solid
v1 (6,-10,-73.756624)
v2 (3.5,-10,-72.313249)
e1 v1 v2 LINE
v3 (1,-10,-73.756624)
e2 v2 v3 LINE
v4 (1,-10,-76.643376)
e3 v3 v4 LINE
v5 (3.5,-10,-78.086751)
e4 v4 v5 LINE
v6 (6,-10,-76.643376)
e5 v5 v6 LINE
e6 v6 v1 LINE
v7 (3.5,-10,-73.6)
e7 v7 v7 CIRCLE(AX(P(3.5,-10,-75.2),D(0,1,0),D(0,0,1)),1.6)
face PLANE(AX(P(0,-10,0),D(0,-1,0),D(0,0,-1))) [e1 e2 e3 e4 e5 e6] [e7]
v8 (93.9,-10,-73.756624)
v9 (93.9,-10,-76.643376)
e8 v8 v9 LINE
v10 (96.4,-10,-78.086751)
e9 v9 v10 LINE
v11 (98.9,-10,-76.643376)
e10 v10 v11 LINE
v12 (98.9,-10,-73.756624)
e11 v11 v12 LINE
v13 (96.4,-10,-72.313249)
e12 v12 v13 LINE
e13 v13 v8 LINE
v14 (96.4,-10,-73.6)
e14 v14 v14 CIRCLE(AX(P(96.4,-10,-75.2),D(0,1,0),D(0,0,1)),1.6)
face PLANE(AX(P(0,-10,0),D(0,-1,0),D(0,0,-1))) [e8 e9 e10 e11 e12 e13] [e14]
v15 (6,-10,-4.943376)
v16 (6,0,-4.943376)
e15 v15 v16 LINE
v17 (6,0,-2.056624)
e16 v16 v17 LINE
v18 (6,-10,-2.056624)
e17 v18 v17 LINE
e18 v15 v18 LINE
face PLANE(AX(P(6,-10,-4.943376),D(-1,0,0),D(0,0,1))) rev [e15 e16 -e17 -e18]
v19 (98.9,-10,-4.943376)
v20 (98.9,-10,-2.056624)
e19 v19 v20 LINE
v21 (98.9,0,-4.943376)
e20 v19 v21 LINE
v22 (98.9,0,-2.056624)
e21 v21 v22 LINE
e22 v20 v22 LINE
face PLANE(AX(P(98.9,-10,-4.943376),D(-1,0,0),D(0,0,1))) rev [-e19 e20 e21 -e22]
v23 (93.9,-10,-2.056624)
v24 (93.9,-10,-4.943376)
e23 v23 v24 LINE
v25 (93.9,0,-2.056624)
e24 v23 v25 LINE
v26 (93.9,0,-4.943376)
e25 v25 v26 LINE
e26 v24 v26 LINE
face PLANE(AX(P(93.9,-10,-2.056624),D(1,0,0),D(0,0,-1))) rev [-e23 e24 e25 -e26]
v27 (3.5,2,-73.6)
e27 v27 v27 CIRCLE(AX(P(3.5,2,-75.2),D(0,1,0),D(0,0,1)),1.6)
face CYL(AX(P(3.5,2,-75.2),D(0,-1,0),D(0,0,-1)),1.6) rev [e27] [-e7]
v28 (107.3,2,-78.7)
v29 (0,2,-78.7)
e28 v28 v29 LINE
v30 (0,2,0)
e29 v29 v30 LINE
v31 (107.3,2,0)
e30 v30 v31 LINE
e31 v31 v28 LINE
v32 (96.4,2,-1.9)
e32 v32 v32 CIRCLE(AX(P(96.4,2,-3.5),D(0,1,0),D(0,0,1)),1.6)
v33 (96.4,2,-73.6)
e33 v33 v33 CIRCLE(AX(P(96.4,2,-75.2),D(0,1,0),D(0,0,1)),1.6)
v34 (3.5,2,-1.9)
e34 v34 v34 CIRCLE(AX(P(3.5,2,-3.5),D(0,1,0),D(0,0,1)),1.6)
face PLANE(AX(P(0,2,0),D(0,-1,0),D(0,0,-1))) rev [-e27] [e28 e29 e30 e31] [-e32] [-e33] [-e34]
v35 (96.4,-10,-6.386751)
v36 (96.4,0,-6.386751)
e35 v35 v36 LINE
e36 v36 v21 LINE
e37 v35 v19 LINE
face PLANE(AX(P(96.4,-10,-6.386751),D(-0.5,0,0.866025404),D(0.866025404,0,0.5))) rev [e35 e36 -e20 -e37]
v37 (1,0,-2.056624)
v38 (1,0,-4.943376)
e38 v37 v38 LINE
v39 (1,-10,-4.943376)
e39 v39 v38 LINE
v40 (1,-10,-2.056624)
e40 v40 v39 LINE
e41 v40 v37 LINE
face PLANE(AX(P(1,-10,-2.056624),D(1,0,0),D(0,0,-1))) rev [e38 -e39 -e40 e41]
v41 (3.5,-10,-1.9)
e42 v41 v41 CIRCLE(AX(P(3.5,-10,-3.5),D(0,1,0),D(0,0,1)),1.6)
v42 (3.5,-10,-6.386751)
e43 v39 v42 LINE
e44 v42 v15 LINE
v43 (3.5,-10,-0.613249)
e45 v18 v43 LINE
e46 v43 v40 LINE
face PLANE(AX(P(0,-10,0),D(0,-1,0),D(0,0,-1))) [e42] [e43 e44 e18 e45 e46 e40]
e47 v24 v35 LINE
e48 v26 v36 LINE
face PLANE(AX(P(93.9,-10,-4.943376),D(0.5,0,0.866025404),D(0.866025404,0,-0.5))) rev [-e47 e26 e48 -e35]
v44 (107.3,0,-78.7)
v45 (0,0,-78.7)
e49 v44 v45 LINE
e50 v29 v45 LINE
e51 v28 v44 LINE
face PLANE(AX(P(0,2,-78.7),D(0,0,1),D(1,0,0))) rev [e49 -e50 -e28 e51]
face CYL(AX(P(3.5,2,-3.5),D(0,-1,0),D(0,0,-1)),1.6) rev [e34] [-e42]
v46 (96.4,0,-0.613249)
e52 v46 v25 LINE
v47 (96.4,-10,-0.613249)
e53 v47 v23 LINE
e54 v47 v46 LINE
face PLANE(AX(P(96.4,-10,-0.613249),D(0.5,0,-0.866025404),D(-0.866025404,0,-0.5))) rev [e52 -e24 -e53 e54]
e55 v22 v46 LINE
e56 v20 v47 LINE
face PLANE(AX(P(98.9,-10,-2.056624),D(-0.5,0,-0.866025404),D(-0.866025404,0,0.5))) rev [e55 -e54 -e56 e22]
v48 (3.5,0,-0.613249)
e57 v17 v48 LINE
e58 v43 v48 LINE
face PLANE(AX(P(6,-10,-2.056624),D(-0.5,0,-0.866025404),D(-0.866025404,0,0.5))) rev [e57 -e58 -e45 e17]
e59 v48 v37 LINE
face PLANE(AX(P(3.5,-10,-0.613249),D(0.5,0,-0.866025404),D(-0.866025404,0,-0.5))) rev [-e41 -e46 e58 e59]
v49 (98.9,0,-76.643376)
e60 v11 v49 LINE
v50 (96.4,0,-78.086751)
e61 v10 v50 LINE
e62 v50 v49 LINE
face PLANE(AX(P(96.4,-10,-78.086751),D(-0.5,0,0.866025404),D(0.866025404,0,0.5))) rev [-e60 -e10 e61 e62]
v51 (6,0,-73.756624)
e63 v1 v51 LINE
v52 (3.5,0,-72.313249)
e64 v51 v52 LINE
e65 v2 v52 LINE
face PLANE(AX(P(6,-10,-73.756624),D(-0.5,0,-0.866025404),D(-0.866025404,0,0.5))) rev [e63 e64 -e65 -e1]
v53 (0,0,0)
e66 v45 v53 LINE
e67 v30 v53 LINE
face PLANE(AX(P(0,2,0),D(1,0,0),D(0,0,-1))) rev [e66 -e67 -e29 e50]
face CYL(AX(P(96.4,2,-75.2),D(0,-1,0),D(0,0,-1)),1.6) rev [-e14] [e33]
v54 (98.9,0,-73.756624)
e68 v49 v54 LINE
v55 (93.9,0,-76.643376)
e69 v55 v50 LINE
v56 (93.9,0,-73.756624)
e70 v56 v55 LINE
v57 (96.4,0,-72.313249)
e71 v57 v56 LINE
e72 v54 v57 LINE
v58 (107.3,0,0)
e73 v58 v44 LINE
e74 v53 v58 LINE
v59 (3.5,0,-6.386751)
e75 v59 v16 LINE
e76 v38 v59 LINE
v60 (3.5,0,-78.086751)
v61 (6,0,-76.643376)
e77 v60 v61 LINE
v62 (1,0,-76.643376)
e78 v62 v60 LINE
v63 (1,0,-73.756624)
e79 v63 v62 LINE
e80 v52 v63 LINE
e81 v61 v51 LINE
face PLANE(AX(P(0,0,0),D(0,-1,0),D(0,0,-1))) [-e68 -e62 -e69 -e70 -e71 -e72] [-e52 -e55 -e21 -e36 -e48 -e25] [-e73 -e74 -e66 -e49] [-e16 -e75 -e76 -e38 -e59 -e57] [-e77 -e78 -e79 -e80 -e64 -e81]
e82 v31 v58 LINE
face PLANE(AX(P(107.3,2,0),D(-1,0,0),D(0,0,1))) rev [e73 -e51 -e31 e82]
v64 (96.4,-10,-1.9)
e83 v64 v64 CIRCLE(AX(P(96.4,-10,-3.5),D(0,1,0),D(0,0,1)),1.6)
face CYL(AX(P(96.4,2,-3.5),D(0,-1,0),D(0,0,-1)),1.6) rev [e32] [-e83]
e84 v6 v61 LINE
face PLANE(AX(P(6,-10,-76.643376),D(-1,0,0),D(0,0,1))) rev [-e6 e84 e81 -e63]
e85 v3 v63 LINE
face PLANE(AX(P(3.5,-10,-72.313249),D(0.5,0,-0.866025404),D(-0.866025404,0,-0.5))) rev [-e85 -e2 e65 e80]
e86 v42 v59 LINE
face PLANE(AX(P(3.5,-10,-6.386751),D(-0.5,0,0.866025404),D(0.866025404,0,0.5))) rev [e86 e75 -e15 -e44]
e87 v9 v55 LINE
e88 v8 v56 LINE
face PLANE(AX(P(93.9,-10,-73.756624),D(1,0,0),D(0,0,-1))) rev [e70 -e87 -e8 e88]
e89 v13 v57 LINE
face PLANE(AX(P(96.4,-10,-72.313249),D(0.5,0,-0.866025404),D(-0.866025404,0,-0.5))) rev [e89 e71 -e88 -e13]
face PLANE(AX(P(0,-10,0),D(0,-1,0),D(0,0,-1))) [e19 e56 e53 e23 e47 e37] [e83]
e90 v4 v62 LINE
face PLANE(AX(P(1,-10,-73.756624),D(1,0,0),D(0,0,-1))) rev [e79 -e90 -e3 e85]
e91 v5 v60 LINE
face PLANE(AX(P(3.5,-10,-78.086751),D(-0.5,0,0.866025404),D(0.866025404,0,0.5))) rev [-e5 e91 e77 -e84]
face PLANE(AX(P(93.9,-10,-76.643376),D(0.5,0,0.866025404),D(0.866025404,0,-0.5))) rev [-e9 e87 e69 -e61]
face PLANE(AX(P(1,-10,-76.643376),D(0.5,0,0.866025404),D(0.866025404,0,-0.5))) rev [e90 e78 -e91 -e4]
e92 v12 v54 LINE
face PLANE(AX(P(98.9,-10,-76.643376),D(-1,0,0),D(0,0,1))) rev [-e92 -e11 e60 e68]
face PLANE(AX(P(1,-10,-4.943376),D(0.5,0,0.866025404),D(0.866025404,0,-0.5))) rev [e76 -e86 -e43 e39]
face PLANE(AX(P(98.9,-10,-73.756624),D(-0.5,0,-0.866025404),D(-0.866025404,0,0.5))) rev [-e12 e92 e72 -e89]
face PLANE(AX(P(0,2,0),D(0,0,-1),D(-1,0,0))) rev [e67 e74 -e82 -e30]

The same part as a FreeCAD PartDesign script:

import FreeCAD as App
import Part
import Sketcher
from FreeCAD import Vector
Q = App.Units.Quantity

doc = App.newDocument("Part")
body = doc.addObject("PartDesign::Body", "Body")

sketch1 = doc.addObject("Sketcher::SketchObject", "Sketch")
body.addObject(sketch1)
sketch1.AttachmentSupport = (doc.XZ_Plane, [""])
sketch1.MapMode = "FlatFace"
sketch1.addGeometry([
    Part.LineSegment(Vector(0, -78.7, 0), Vector(0, 0, 0)),
    Part.LineSegment(Vector(0, 0, 0), Vector(107.3, 0, 0)),
    Part.LineSegment(Vector(107.3, 0, 0), Vector(107.3, -78.7, 0)),
    Part.LineSegment(Vector(107.3, -78.7, 0), Vector(0, -78.7, 0)),
    Part.Circle(Vector(3.5, -3.5, 0), Vector(0, 0, 1), 1.6),
    Part.Circle(Vector(96.4, -3.5, 0), Vector(0, 0, 1), 1.6),
    Part.Circle(Vector(3.5, -75.2, 0), Vector(0, 0, 1), 1.6),
    Part.Circle(Vector(96.4, -75.2, 0), Vector(0, 0, 1), 1.6),
], False)
sketch1.addConstraint([
    Sketcher.Constraint("Coincident", 0, 2, 1, 1),
    Sketcher.Constraint("Coincident", 1, 2, 2, 1),
    Sketcher.Constraint("Coincident", 2, 2, 3, 1),
    Sketcher.Constraint("Coincident", 3, 2, 0, 1),
    Sketcher.Constraint("Vertical", 0),
    Sketcher.Constraint("Horizontal", 1),
    Sketcher.Constraint("Vertical", 2),
    Sketcher.Constraint("Horizontal", 3),
    Sketcher.Constraint("Coincident", 0, 2, -1, 1),
    Sketcher.Constraint("Equal", 4, 5),
    Sketcher.Constraint("Equal", 5, 6),
    Sketcher.Constraint("Equal", 6, 7),
    Sketcher.Constraint("Horizontal", 4, 3, 5, 3),
    Sketcher.Constraint("Horizontal", 6, 3, 7, 3),
    Sketcher.Constraint("Vertical", 4, 3, 6, 3),
    Sketcher.Constraint("Vertical", 5, 3, 7, 3),
    Sketcher.Constraint("Diameter", 4, 3.2),
    Sketcher.Constraint("DistanceX", 1, 1, 1, 2, 107.3),
    Sketcher.Constraint("DistanceY", 0, 1, 0, 2, 78.7),
    Sketcher.Constraint("DistanceX", -1, 1, 4, 3, 3.5),
    Sketcher.Constraint("DistanceY", 4, 3, -1, 1, 3.5),
    Sketcher.Constraint("DistanceX", -1, 1, 5, 3, 96.4),
    Sketcher.Constraint("DistanceY", 6, 3, -1, 1, 75.2),
])
pad1 = doc.addObject("PartDesign::Pad", "Pad")
body.addObject(pad1)
pad1.Profile = sketch1
pad1.Length = 2
pad1.Reversed = True

sketch2 = doc.addObject("Sketcher::SketchObject", "Sketch001")
body.addObject(sketch2)
sketch2.AttachmentSupport = (doc.XZ_Plane, [""])
sketch2.MapMode = "FlatFace"
sketch2.addGeometry([
    Part.LineSegment(Vector(93.9, -4.9, 0), Vector(96.4, -6.4, 0)),
    Part.LineSegment(Vector(96.4, -6.4, 0), Vector(98.9, -4.9, 0)),
    Part.LineSegment(Vector(98.9, -4.9, 0), Vector(98.9, -2.1, 0)),
    Part.LineSegment(Vector(98.9, -2.1, 0), Vector(96.4, -0.6, 0)),
    Part.LineSegment(Vector(96.4, -0.6, 0), Vector(93.9, -2.1, 0)),
    Part.LineSegment(Vector(93.9, -2.1, 0), Vector(93.9, -4.9, 0)),
    Part.LineSegment(Vector(93.9, -76.6, 0), Vector(96.4, -78.1, 0)),
    Part.LineSegment(Vector(96.4, -78.1, 0), Vector(98.9, -76.6, 0)),
    Part.LineSegment(Vector(98.9, -76.6, 0), Vector(98.9, -73.8, 0)),
    Part.LineSegment(Vector(98.9, -73.8, 0), Vector(96.4, -72.3, 0)),
    Part.LineSegment(Vector(96.4, -72.3, 0), Vector(93.9, -73.8, 0)),
    Part.LineSegment(Vector(93.9, -73.8, 0), Vector(93.9, -76.6, 0)),
    Part.LineSegment(Vector(3.5, -6.4, 0), Vector(6, -4.9, 0)),
    Part.LineSegment(Vector(6, -4.9, 0), Vector(6, -2.1, 0)),
    Part.LineSegment(Vector(6, -2.1, 0), Vector(3.5, -0.6, 0)),
    Part.LineSegment(Vector(3.5, -0.6, 0), Vector(1, -2.1, 0)),
    Part.LineSegment(Vector(1, -2.1, 0), Vector(1, -4.9, 0)),
    Part.LineSegment(Vector(1, -4.9, 0), Vector(3.5, -6.4, 0)),
    Part.LineSegment(Vector(3.5, -72.3, 0), Vector(1, -73.8, 0)),
    Part.LineSegment(Vector(1, -73.8, 0), Vector(1, -76.6, 0)),
    Part.LineSegment(Vector(1, -76.6, 0), Vector(3.5, -78.1, 0)),
    Part.LineSegment(Vector(3.5, -78.1, 0), Vector(6, -76.6, 0)),
    Part.LineSegment(Vector(6, -76.6, 0), Vector(6, -73.8, 0)),
    Part.LineSegment(Vector(6, -73.8, 0), Vector(3.5, -72.3, 0)),
], False)
sketch2.addConstraint([
    Sketcher.Constraint("Coincident", 0, 2, 1, 1),
    Sketcher.Constraint("Coincident", 1, 2, 2, 1),
    Sketcher.Constraint("Coincident", 2, 2, 3, 1),
    Sketcher.Constraint("Coincident", 3, 2, 4, 1),
    Sketcher.Constraint("Coincident", 4, 2, 5, 1),
    Sketcher.Constraint("Coincident", 5, 2, 0, 1),
    Sketcher.Constraint("Coincident", 6, 2, 7, 1),
    Sketcher.Constraint("Coincident", 7, 2, 8, 1),
    Sketcher.Constraint("Coincident", 8, 2, 9, 1),
    Sketcher.Constraint("Coincident", 9, 2, 10, 1),
    Sketcher.Constraint("Coincident", 10, 2, 11, 1),
    Sketcher.Constraint("Coincident", 11, 2, 6, 1),
    Sketcher.Constraint("Coincident", 12, 2, 13, 1),
    Sketcher.Constraint("Coincident", 13, 2, 14, 1),
    Sketcher.Constraint("Coincident", 14, 2, 15, 1),
    Sketcher.Constraint("Coincident", 15, 2, 16, 1),
    Sketcher.Constraint("Coincident", 16, 2, 17, 1),
    Sketcher.Constraint("Coincident", 17, 2, 12, 1),
    Sketcher.Constraint("Coincident", 18, 2, 19, 1),
    Sketcher.Constraint("Coincident", 19, 2, 20, 1),
    Sketcher.Constraint("Coincident", 20, 2, 21, 1),
    Sketcher.Constraint("Coincident", 21, 2, 22, 1),
    Sketcher.Constraint("Coincident", 22, 2, 23, 1),
    Sketcher.Constraint("Coincident", 23, 2, 18, 1),
    Sketcher.Constraint("Vertical", 2),
    Sketcher.Constraint("Vertical", 5),
    Sketcher.Constraint("Vertical", 8),
    Sketcher.Constraint("Vertical", 11),
    Sketcher.Constraint("Vertical", 13),
    Sketcher.Constraint("Vertical", 16),
    Sketcher.Constraint("Vertical", 19),
    Sketcher.Constraint("Vertical", 22),
    Sketcher.Constraint("Parallel", 0, 3),
    Sketcher.Constraint("Parallel", 1, 4),
    Sketcher.Constraint("Parallel", 3, 6),
    Sketcher.Constraint("Parallel", 4, 7),
    Sketcher.Constraint("Parallel", 6, 9),
    Sketcher.Constraint("Parallel", 7, 10),
    Sketcher.Constraint("Parallel", 10, 12),
    Sketcher.Constraint("Parallel", 9, 14),
    Sketcher.Constraint("Parallel", 12, 15),
    Sketcher.Constraint("Parallel", 14, 17),
    Sketcher.Constraint("Parallel", 15, 18),
    Sketcher.Constraint("Parallel", 17, 20),
    Sketcher.Constraint("Parallel", 18, 21),
    Sketcher.Constraint("Parallel", 20, 23),
    Sketcher.Constraint("Horizontal", 2, 2, 4, 2),
    Sketcher.Constraint("Horizontal", 1, 2, 5, 2),
    Sketcher.Constraint("Horizontal", 8, 2, 10, 2),
    Sketcher.Constraint("Horizontal", 7, 2, 11, 2),
    Sketcher.Constraint("Horizontal", 5, 2, 12, 2),
    Sketcher.Constraint("Horizontal", 4, 2, 13, 2),
    Sketcher.Constraint("Horizontal", 3, 2, 14, 2),
    Sketcher.Constraint("Horizontal", 13, 2, 15, 2),
    Sketcher.Constraint("Horizontal", 12, 2, 16, 2),
    Sketcher.Constraint("Horizontal", 10, 2, 18, 2),
    Sketcher.Constraint("Horizontal", 11, 2, 19, 2),
    Sketcher.Constraint("Horizontal", 6, 2, 20, 2),
    Sketcher.Constraint("Horizontal", 19, 2, 21, 2),
    Sketcher.Constraint("Horizontal", 18, 2, 22, 2),
    Sketcher.Constraint("Vertical", 0, 2, 3, 2),
    Sketcher.Constraint("Vertical", 3, 2, 6, 2),
    Sketcher.Constraint("Vertical", 2, 2, 7, 2),
    Sketcher.Constraint("Vertical", 16, 2, 18, 2),
    Sketcher.Constraint("Equal", 5, 8),
    Sketcher.Constraint("Angle", 0, Q("-30 deg")),
    Sketcher.Constraint("DistanceX", -1, 1, 12, 2, 6.0),
    Sketcher.Constraint("DistanceX", -1, 1, 15, 2, 1.0),
    Sketcher.Constraint("DistanceX", -1, 1, 0, 2, 96.4),
    Sketcher.Constraint("DistanceY", 6, 2, 0, 2, 71.7),
    Sketcher.Constraint("DistanceY", 2, 1, 2, 2, 2.886751),
    Sketcher.Constraint("DistanceY", 0, 2, -1, 1, 6.386751),
])
pad2 = doc.addObject("PartDesign::Pad", "Pad001")
body.addObject(pad2)
pad2.Profile = sketch2
pad2.Length = 10

sketch3 = doc.addObject("Sketcher::SketchObject", "Sketch002")
body.addObject(sketch3)
sketch3.AttachmentSupport = (doc.XZ_Plane, [""])
sketch3.MapMode = "FlatFace"
sketch3.addGeometry([
    Part.Circle(Vector(3.5, -3.5, 0), Vector(0, 0, 1), 1.6),
    Part.Circle(Vector(3.5, -75.2, 0), Vector(0, 0, 1), 1.6),
    Part.Circle(Vector(96.4, -75.2, 0), Vector(0, 0, 1), 1.6),
    Part.Circle(Vector(96.4, -3.5, 0), Vector(0, 0, 1), 1.6),
], False)
sketch3.addConstraint([
    Sketcher.Constraint("Equal", 0, 1),
    Sketcher.Constraint("Equal", 1, 2),
    Sketcher.Constraint("Equal", 2, 3),
    Sketcher.Constraint("Horizontal", 1, 3, 2, 3),
    Sketcher.Constraint("Horizontal", 0, 3, 3, 3),
    Sketcher.Constraint("Vertical", 0, 3, 1, 3),
    Sketcher.Constraint("Vertical", 2, 3, 3, 3),
    Sketcher.Constraint("Diameter", 0, 3.2),
    Sketcher.Constraint("DistanceX", -1, 1, 0, 3, 3.5),
    Sketcher.Constraint("DistanceY", 0, 3, -1, 1, 3.5),
    Sketcher.Constraint("DistanceY", 1, 3, -1, 1, 75.2),
    Sketcher.Constraint("DistanceX", -1, 1, 2, 3, 96.4),
])
pocket1 = doc.addObject("PartDesign::Pocket", "Pocket")
body.addObject(pocket1)
pocket1.Profile = sketch3
pocket1.Type = "ThroughAll"
pocket1.Reversed = True

doc.recompute()
